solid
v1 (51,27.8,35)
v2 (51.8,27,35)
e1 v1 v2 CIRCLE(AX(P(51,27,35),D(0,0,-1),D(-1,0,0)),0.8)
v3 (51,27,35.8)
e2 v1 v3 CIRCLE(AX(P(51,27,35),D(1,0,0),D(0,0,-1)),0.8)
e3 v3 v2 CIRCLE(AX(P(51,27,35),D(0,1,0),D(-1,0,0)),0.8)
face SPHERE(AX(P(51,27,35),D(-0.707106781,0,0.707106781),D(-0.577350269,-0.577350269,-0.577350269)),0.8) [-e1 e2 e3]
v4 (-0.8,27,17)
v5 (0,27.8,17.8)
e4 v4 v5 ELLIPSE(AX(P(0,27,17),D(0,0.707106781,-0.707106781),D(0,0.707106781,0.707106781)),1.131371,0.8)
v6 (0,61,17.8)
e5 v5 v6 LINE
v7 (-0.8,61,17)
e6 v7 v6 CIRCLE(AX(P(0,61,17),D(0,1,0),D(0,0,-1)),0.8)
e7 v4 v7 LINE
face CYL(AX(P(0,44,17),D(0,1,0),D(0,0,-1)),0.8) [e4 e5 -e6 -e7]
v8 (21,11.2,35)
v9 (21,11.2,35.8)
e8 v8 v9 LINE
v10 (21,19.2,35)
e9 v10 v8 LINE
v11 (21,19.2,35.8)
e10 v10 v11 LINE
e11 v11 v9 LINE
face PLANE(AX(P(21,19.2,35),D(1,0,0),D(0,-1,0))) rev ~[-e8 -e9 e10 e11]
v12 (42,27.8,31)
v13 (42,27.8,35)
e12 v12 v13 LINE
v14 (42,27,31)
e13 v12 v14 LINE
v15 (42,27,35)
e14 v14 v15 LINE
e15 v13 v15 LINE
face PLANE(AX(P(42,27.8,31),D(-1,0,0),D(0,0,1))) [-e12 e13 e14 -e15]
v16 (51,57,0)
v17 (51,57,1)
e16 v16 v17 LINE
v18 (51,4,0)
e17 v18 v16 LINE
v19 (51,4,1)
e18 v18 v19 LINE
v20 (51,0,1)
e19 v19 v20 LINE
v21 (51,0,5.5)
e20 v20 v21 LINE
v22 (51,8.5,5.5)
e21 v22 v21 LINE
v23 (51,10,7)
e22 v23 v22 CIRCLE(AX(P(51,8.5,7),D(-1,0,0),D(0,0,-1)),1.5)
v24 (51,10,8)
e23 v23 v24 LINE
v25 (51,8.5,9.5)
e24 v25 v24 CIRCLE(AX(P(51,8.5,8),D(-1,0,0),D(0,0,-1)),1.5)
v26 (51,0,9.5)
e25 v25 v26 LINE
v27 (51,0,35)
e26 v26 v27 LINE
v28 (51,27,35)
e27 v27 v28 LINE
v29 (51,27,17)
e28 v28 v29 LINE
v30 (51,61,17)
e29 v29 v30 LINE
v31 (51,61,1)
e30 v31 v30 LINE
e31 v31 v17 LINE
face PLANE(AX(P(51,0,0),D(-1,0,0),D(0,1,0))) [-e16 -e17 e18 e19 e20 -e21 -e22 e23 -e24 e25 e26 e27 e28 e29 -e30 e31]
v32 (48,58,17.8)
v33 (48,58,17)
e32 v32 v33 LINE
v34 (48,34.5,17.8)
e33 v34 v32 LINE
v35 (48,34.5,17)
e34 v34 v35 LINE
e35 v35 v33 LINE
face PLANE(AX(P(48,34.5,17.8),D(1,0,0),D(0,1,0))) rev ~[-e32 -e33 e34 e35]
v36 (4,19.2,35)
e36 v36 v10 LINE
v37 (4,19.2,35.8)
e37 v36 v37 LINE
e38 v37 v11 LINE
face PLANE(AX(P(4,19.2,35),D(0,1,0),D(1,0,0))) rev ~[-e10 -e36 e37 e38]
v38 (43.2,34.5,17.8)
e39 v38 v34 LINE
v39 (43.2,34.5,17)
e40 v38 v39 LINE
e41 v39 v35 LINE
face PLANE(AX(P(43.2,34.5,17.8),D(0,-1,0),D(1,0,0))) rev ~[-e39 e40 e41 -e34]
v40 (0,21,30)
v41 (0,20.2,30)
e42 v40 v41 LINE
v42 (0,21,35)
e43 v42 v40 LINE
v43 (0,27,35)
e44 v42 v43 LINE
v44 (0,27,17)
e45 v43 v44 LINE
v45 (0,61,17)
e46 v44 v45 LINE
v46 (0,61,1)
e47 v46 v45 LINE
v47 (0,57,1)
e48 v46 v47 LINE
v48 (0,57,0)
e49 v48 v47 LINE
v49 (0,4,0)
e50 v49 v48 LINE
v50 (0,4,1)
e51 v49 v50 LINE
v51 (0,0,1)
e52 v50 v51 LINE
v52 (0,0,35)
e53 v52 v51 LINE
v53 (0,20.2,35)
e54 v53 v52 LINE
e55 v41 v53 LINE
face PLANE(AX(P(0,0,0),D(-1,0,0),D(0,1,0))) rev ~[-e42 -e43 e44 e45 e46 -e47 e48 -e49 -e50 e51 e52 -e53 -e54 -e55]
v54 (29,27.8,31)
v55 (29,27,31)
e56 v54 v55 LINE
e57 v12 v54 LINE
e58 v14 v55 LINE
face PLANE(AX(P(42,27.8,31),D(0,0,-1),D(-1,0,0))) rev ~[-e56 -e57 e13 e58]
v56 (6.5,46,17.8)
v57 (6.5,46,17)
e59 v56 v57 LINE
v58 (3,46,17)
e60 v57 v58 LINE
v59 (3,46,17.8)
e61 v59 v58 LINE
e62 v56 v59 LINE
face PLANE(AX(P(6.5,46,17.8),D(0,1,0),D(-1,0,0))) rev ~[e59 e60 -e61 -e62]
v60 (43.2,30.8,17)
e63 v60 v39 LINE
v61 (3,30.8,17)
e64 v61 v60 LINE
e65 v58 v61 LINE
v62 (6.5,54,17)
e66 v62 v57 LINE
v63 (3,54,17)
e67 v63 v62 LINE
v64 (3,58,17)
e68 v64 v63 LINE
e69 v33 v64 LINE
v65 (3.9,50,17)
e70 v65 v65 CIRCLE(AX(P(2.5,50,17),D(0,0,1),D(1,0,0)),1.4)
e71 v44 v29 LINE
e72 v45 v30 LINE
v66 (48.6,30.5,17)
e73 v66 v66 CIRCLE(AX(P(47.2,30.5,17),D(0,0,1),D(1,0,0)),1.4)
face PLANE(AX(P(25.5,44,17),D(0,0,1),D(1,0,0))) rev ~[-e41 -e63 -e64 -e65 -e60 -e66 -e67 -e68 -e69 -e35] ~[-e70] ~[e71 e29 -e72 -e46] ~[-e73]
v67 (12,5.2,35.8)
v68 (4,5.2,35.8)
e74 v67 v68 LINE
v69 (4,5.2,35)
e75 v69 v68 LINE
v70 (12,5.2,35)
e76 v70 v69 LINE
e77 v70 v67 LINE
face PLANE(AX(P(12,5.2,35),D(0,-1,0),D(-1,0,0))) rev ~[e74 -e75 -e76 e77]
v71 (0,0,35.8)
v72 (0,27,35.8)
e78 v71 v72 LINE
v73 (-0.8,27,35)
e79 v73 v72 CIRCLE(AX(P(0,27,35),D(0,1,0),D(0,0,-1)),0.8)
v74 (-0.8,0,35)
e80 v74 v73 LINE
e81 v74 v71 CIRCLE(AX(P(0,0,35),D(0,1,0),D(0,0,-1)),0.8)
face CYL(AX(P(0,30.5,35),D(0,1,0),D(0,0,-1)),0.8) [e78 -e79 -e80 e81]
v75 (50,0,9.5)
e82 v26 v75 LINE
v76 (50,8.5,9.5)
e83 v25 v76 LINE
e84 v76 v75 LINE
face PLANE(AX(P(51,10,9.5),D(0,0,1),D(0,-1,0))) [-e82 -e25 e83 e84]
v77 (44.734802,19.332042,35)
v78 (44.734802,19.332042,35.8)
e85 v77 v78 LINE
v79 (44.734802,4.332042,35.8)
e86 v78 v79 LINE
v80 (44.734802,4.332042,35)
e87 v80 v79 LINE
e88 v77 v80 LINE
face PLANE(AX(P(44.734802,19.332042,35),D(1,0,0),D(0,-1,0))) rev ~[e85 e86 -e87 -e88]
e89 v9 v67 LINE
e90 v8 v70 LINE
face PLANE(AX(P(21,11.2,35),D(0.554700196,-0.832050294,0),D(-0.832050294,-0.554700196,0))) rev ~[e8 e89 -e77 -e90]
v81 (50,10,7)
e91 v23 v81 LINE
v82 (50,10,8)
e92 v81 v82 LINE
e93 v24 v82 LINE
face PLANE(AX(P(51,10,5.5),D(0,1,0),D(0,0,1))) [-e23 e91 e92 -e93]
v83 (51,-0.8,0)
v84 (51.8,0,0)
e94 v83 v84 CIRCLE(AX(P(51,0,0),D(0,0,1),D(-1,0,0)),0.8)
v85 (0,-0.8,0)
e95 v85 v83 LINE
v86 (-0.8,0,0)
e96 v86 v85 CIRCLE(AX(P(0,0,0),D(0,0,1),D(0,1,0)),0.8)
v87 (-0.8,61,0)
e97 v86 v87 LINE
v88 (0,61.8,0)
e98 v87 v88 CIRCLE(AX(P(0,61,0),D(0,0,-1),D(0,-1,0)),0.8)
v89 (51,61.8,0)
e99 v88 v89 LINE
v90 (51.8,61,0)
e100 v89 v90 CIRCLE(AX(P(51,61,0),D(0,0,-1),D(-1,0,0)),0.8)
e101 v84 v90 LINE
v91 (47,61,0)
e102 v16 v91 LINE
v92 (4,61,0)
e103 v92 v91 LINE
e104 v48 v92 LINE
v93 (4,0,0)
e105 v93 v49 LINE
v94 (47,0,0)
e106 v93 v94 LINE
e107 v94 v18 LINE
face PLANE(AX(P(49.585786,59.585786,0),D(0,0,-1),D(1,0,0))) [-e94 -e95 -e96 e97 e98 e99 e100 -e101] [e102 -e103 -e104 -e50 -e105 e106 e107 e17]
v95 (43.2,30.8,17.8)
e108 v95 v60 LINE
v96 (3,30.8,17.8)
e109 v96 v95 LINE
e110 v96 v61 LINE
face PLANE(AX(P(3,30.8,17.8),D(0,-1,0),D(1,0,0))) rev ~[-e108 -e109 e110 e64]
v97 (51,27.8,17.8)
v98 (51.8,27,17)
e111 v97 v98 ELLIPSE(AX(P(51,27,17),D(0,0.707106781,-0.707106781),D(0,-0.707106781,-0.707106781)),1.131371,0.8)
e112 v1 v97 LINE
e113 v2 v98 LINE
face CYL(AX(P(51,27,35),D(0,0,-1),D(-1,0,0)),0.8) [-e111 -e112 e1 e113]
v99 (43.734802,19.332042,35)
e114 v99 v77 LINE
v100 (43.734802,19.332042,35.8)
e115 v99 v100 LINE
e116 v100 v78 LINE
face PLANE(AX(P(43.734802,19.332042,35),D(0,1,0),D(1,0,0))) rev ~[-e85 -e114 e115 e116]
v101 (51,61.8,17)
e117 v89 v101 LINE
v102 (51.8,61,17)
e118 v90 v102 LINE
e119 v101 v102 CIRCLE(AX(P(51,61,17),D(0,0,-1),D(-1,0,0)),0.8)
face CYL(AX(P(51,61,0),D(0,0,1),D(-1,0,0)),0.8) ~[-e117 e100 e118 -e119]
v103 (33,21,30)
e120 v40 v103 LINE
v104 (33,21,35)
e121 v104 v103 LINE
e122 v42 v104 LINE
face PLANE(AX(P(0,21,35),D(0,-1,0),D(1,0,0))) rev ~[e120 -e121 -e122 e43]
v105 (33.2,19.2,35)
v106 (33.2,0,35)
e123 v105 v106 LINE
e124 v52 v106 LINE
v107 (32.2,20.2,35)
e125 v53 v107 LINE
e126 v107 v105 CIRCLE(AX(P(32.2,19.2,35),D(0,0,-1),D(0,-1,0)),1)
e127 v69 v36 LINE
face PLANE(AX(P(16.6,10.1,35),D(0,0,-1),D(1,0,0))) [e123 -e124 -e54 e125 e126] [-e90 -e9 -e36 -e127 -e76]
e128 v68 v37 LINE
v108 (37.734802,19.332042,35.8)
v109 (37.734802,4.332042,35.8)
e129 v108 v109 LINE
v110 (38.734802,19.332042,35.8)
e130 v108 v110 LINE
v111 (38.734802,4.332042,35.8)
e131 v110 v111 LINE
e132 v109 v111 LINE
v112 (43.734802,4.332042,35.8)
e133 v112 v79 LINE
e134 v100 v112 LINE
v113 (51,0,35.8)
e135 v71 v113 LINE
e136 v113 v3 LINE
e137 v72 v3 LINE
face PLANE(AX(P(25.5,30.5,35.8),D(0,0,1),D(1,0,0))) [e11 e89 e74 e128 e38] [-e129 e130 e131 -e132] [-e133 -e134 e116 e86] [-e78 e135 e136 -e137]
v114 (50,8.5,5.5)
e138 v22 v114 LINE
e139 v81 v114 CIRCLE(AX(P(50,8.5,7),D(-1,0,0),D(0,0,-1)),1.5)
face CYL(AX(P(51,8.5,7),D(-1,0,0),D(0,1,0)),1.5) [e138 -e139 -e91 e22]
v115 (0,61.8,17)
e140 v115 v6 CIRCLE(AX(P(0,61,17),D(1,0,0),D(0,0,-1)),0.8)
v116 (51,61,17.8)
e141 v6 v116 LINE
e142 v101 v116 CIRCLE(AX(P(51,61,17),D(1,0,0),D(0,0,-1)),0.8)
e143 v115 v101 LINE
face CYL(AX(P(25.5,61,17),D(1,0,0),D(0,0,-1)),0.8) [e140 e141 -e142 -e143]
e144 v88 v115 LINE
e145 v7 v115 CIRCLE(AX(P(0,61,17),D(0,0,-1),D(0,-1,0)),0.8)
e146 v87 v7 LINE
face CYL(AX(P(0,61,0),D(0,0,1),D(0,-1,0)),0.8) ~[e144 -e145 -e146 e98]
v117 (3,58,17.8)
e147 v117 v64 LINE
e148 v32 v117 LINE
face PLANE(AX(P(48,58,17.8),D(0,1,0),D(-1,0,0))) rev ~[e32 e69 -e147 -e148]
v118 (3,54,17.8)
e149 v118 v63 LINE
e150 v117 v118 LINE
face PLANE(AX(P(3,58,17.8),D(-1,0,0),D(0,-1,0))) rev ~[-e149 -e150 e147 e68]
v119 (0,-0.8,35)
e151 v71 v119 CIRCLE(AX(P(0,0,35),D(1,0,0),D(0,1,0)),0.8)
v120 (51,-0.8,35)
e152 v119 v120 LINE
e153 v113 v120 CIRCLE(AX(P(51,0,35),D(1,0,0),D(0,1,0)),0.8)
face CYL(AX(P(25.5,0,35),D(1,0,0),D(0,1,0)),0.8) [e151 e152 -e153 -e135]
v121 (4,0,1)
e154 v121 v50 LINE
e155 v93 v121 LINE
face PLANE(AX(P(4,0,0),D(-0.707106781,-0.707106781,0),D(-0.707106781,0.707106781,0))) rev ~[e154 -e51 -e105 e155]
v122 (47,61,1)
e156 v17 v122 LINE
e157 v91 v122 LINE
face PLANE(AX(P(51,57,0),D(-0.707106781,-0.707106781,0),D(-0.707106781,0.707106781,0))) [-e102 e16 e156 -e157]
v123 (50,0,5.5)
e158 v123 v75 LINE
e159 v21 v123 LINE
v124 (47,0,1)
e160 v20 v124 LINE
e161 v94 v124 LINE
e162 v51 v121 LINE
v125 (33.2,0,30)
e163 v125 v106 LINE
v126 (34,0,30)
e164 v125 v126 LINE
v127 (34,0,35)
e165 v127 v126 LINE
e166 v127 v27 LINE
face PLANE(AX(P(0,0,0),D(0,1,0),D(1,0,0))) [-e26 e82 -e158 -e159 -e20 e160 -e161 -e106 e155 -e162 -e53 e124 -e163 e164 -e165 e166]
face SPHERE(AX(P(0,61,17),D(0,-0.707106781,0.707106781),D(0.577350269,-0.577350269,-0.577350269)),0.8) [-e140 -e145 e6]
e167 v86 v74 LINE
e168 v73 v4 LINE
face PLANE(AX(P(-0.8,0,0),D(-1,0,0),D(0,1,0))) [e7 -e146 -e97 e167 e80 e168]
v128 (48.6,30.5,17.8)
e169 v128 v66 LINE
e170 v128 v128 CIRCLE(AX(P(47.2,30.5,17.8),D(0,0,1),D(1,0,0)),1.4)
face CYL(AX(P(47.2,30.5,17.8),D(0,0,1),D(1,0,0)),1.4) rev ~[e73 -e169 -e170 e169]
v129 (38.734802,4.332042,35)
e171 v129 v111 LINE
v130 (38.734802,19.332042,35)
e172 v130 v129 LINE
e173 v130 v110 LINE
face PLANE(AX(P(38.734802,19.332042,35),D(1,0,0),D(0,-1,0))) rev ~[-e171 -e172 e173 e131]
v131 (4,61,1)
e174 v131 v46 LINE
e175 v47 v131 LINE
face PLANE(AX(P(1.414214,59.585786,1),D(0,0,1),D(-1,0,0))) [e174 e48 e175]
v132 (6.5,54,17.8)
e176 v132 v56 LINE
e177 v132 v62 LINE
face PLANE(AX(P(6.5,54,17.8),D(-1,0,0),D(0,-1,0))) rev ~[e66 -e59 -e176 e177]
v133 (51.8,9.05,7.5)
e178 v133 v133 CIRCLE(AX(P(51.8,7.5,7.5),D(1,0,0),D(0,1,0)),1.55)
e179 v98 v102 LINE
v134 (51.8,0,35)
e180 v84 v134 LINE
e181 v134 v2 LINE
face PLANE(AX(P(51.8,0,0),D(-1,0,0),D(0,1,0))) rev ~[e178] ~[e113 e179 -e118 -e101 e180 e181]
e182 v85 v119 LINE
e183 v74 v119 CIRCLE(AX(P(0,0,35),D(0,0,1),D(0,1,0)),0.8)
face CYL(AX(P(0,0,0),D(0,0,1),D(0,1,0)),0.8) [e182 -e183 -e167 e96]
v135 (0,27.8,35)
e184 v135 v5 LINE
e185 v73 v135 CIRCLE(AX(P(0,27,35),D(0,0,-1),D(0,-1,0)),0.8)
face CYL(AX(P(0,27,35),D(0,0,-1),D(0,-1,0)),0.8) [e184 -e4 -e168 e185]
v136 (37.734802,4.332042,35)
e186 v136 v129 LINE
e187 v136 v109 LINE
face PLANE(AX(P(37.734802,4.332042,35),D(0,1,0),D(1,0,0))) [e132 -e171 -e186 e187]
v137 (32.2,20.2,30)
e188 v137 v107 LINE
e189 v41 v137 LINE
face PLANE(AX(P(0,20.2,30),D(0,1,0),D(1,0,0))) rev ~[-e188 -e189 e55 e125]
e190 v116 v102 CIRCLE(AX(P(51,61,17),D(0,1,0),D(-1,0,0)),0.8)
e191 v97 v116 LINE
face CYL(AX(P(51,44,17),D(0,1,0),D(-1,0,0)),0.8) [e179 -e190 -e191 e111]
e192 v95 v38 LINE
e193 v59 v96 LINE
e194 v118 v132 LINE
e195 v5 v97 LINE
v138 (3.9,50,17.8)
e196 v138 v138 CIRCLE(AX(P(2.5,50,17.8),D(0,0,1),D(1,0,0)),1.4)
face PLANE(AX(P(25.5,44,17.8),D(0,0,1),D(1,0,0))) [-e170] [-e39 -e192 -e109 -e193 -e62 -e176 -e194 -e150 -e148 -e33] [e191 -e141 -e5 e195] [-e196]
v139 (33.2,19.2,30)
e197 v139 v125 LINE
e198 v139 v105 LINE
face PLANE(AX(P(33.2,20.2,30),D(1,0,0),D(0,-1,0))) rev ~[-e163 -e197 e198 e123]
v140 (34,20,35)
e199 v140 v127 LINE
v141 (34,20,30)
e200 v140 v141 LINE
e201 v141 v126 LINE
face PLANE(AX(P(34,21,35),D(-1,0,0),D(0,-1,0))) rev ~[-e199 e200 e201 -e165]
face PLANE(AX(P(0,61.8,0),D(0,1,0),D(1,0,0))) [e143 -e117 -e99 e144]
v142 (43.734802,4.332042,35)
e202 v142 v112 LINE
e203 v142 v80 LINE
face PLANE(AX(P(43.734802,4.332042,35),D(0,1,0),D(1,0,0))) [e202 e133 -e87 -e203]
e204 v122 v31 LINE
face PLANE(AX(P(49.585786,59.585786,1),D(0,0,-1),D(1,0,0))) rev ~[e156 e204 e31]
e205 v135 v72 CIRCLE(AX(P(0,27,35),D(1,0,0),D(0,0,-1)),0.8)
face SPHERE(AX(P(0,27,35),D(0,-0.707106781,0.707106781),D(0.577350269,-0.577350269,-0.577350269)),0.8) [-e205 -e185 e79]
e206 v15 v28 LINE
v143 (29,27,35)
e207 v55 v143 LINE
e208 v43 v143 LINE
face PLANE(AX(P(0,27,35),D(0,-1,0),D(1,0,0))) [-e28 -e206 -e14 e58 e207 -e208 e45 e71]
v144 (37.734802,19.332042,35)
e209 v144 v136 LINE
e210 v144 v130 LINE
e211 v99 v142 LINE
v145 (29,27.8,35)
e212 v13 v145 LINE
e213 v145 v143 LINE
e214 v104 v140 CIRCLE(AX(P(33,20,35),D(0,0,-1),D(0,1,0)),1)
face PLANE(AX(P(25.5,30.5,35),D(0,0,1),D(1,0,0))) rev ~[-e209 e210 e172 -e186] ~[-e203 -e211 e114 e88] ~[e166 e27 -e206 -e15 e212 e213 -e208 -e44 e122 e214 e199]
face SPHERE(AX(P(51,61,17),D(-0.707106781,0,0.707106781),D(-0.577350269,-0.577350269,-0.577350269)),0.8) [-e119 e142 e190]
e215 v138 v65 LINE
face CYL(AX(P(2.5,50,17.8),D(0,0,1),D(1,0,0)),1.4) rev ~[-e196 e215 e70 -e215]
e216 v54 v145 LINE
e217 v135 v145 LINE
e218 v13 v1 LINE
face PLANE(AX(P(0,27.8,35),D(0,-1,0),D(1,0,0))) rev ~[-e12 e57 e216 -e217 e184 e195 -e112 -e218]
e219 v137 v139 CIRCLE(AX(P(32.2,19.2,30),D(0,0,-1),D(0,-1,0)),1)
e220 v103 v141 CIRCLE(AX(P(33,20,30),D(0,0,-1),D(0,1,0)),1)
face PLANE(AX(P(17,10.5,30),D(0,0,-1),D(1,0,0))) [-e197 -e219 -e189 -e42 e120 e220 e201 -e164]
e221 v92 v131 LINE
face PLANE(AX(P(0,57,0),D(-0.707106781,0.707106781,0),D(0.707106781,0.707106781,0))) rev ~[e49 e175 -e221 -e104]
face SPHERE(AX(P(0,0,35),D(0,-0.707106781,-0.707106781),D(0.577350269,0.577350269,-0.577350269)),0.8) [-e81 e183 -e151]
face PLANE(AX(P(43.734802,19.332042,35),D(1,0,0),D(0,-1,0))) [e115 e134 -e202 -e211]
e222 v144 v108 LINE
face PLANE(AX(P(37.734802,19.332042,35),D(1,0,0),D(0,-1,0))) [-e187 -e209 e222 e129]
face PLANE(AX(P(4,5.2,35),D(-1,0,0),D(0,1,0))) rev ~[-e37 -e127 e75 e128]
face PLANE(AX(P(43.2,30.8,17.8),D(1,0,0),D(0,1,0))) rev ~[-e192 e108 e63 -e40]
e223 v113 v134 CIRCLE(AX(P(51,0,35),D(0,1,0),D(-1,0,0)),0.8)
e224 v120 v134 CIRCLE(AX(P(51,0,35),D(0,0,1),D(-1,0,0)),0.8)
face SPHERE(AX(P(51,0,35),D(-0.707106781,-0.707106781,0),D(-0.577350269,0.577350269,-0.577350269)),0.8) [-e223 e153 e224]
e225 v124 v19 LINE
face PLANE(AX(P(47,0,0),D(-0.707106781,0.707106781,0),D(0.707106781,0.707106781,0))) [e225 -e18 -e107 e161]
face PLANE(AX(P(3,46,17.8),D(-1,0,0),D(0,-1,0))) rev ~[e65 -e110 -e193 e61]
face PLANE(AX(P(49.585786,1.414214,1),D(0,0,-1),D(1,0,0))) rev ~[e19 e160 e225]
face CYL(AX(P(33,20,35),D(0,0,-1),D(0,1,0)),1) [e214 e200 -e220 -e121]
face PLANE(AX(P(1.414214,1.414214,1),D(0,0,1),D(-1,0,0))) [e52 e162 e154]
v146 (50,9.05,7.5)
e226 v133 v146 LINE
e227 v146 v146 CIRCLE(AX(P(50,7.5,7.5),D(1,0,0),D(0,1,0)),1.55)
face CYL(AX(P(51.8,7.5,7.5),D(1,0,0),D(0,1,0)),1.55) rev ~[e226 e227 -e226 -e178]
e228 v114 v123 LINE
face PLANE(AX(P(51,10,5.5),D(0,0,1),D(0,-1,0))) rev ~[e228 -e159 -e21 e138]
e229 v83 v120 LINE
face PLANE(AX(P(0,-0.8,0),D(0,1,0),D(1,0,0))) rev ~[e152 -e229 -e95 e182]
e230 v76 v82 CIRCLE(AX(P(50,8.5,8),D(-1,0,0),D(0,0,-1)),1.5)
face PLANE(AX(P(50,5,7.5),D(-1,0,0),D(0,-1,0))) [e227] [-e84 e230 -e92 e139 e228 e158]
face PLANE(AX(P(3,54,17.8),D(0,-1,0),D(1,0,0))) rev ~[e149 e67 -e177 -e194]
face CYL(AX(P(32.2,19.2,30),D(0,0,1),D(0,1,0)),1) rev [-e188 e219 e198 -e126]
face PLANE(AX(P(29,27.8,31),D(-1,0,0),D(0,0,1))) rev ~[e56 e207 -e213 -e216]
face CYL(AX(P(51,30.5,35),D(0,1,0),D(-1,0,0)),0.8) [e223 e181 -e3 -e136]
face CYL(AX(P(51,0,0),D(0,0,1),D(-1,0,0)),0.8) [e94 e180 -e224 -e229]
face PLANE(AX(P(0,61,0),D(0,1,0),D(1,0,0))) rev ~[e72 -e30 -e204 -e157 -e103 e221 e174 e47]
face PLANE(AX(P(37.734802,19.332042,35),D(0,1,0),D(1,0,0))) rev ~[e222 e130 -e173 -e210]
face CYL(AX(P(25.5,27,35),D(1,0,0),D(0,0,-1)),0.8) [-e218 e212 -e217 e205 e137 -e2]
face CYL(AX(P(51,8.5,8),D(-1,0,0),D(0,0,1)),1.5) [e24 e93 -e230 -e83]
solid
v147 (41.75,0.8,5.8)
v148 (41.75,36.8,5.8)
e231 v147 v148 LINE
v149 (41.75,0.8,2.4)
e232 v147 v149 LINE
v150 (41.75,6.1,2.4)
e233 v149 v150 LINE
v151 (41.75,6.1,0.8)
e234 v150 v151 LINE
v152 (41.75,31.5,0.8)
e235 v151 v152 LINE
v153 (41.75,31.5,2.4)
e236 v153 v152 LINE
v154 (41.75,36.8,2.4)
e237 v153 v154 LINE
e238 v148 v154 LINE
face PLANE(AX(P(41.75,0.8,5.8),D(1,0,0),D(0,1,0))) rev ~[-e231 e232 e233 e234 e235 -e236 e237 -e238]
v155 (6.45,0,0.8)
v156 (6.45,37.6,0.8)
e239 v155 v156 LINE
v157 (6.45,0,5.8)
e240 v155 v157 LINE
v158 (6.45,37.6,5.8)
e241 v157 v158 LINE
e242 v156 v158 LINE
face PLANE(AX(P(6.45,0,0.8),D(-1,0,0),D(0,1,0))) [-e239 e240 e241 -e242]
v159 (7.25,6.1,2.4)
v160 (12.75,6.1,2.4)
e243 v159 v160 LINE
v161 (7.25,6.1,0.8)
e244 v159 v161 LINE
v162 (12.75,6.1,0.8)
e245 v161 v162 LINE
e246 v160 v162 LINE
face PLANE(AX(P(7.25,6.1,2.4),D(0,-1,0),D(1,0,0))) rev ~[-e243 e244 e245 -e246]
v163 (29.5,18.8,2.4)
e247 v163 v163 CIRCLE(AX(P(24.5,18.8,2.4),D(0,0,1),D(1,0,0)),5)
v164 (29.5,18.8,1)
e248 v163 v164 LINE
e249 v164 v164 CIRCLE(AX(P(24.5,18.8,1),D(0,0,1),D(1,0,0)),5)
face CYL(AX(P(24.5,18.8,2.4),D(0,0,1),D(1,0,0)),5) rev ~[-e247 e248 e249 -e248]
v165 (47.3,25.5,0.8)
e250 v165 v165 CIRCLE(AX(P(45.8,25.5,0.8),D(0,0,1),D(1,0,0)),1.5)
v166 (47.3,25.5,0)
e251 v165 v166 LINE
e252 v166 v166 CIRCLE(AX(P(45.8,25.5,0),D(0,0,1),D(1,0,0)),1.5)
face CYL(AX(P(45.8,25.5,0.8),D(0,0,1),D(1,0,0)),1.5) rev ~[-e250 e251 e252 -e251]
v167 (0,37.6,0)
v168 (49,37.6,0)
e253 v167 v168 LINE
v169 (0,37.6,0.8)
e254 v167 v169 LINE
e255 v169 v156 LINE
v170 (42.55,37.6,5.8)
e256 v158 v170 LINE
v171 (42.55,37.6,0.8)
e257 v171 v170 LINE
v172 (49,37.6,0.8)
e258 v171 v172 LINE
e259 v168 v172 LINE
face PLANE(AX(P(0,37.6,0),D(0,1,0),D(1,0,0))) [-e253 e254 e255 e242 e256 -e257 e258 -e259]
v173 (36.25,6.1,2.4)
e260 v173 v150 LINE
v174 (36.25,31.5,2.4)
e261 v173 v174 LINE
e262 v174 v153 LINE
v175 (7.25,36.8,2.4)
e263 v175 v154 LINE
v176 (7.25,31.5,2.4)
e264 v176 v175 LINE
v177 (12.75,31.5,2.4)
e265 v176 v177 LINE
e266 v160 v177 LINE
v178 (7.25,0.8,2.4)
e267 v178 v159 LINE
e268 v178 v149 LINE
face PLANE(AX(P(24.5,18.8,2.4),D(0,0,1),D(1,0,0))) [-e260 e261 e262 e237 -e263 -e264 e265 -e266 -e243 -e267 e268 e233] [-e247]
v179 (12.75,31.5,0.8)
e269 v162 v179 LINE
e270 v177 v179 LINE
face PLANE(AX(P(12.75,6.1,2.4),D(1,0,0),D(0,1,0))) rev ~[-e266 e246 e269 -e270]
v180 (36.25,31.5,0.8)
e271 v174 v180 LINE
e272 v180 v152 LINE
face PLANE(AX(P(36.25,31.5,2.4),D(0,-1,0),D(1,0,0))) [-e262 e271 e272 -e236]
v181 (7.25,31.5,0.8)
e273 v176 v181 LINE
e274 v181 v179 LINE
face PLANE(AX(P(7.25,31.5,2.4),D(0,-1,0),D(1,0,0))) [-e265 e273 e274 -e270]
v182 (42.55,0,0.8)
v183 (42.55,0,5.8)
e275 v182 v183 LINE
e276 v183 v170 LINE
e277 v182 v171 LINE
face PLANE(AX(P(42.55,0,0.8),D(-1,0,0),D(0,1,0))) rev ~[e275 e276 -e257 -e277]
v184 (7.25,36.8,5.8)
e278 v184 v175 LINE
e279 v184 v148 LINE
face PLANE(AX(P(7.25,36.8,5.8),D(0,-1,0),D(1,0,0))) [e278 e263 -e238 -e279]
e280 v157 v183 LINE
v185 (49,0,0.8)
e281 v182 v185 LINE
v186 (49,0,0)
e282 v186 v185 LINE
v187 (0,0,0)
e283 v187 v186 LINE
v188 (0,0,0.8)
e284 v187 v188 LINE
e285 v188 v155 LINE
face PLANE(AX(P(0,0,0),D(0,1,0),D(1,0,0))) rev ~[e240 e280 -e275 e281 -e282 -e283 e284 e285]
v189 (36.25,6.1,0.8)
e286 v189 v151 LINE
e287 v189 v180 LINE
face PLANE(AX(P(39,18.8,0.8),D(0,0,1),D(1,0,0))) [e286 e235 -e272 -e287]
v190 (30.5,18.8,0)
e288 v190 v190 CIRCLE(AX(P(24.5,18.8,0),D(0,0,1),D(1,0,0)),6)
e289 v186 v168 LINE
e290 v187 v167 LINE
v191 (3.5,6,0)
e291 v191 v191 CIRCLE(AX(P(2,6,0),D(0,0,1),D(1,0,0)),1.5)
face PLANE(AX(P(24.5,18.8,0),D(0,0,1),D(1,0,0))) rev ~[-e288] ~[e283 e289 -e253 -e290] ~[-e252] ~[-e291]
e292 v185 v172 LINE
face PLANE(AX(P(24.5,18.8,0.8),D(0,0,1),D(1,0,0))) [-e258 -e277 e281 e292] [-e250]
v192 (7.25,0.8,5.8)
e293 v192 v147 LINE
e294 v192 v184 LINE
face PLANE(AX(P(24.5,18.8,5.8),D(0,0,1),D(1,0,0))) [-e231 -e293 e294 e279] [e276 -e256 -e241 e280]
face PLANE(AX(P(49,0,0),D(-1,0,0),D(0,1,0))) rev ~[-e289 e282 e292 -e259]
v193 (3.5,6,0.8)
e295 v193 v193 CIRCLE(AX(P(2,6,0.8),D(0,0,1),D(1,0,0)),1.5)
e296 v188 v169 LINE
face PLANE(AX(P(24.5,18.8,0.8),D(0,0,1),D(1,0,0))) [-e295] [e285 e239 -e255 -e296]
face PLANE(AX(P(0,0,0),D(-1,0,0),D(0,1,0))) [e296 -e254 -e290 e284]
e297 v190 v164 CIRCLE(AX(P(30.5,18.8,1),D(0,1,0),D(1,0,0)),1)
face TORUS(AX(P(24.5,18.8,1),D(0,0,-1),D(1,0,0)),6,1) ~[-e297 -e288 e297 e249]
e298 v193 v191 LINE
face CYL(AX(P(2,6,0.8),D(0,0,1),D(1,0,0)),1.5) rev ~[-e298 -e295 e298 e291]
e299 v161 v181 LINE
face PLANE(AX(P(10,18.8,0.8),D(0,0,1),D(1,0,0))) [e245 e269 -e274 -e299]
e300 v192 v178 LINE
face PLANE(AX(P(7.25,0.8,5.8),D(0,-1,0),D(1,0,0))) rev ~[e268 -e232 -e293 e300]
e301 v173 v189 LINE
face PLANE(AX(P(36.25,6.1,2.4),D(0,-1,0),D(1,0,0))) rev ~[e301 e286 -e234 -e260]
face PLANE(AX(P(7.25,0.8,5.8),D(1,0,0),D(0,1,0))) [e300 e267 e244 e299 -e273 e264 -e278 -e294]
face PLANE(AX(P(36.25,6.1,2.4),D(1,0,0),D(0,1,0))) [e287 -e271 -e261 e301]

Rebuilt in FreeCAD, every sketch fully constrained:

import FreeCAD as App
import Part
import Sketcher

V = App.Vector
Q = App.Units.Quantity


def edges_at(feature, points):
    """Names of the edges that pass closest to the given points."""
    edges = feature.Shape.Edges
    near = lambda p: min(range(len(edges)), key=lambda i: edges[i].distToShape(Part.Vertex(*p))[0])
    return sorted({f"Edge{near(p) + 1}" for p in points})


def faces_at(feature, points):
    """Names of the faces that lie closest to the given points."""
    faces = feature.Shape.Faces
    near = lambda p: min(range(len(faces)), key=lambda i: faces[i].distToShape(Part.Vertex(*p))[0])
    return sorted({f"Face{near(p) + 1}" for p in points})


def add_polygon(sketch, points):
    """Adds a closed chain of lines whose ends are joined by coincident constraints."""
    first, n = sketch.GeometryCount, len(points)
    for a, b in zip(points, points[1:] + points[:1]):
        sketch.addGeometry(Part.LineSegment(App.Vector(*a, 0), App.Vector(*b, 0)), False)
    for i in range(n):
        sketch.addConstraint(Sketcher.Constraint("Coincident", first + i, 2, first + (i + 1) % n, 1))

doc = App.newDocument("Part")
body = doc.addObject("PartDesign::Body", "Body")

sketch1 = doc.addObject("Sketcher::SketchObject", "Sketch")
body.addObject(sketch1)
sketch1.AttachmentSupport = (doc.XY_Plane, [""])
sketch1.MapMode = "FlatFace"
add_polygon(sketch1, [(0, 61), (0, 0), (51, 0), (51, 61)])
sketch1.addConstraint([
    Sketcher.Constraint("Vertical", 0),
    Sketcher.Constraint("Horizontal", 1),
    Sketcher.Constraint("Vertical", 2),
    Sketcher.Constraint("Horizontal", 3),
    Sketcher.Constraint("Coincident", 0, 2, -1, 1),
    Sketcher.Constraint("DistanceX", 1, 1, 1, 2, Q("51 mm")),
    Sketcher.Constraint("DistanceY", 0, 2, 0, 1, Q("61 mm")),
])
pad1 = doc.addObject("PartDesign::Pad", "Pad")
body.addObject(pad1)
pad1.Profile = sketch1
pad1.Length = 35

sketch2 = doc.addObject("Sketcher::SketchObject", "Sketch001")
body.addObject(sketch2)
sketch2.AttachmentSupport = (doc.XY_Plane, [""])
sketch2.MapMode = "FlatFace"
sketch2.AttachmentOffset = App.Placement(V(0, 0, 35), App.Rotation())
add_polygon(sketch2, [(0, 61), (0, 27), (51, 27), (51, 61)])
sketch2.addConstraint([
    Sketcher.Constraint("Vertical", 0),
    Sketcher.Constraint("Horizontal", 1),
    Sketcher.Constraint("Vertical", 2),
    Sketcher.Constraint("Horizontal", 3),
    Sketcher.Constraint("PointOnObject", 0, 2, -2),
    Sketcher.Constraint("DistanceX", 1, 1, 1, 2, Q("51 mm")),
    Sketcher.Constraint("DistanceY", 0, 2, 0, 1, Q("34 mm")),
    Sketcher.Constraint("DistanceY", -1, 1, 0, 2, Q("27 mm")),
])
pocket1 = doc.addObject("PartDesign::Pocket", "Pocket")
body.addObject(pocket1)
pocket1.Profile = sketch2
pocket1.Length = 18
doc.recompute()

thickness = doc.addObject("PartDesign::Thickness", "Thickness")
body.addObject(thickness)
thickness.Base = (pocket1, faces_at(pocket1, [(25.5, 30.5, 0)]))
thickness.Value = 0.8
thickness.Reversed = False
thickness.Join = "Arc"

sketch3 = doc.addObject("Sketcher::SketchObject", "Sketch002")
body.addObject(sketch3)
sketch3.AttachmentSupport = (doc.XZ_Plane, [""])
sketch3.MapMode = "FlatFace"
sketch3.AttachmentOffset = App.Placement(V(0, 0, -27.8), App.Rotation())
add_polygon(sketch3, [(42, 35), (42, 31), (29, 31), (29, 35)])
sketch3.addConstraint([
    Sketcher.Constraint("Vertical", 0),
    Sketcher.Constraint("Horizontal", 1),
    Sketcher.Constraint("Vertical", 2),
    Sketcher.Constraint("Horizontal", 3),
    Sketcher.Constraint("DistanceX", 1, 2, 1, 1, Q("13 mm")),
    Sketcher.Constraint("DistanceY", 0, 2, 0, 1, Q("4 mm")),
    Sketcher.Constraint("DistanceX", -1, 1, 0, 2, Q("42 mm")),
    Sketcher.Constraint("DistanceY", -1, 1, 0, 2, Q("31 mm")),
])
pocket2 = doc.addObject("PartDesign::Pocket", "Pocket001")
body.addObject(pocket2)
pocket2.Profile = sketch3
pocket2.Length = 0.8
pocket2.Reversed = True

sketch4 = doc.addObject("Sketcher::SketchObject", "Sketch003")
body.addObject(sketch4)
sketch4.AttachmentSupport = (doc.XY_Plane, [""])
sketch4.MapMode = "FlatFace"
sketch4.AttachmentOffset = App.Placement(V(0, 0, 17.8), App.Rotation())
sketch4.addGeometry(Part.Circle(V(2.5, 50, 0), V(0, 0, 1), 1.4), False)
sketch4.addConstraint([
    Sketcher.Constraint("Diameter", 0, Q("2.8 mm")),
    Sketcher.Constraint("DistanceY", -1, 1, 0, 3, Q("50 mm")),
    Sketcher.Constraint("DistanceX", -1, 1, 0, 3, Q("2.5 mm")),
])
pocket3 = doc.addObject("PartDesign::Pocket", "Pocket002")
body.addObject(pocket3)
pocket3.Profile = sketch4
pocket3.Length = 0.8

sketch5 = doc.addObject("Sketcher::SketchObject", "Sketch004")
body.addObject(sketch5)
sketch5.AttachmentSupport = (doc.XY_Plane, [""])
sketch5.MapMode = "FlatFace"
sketch5.AttachmentOffset = App.Placement(V(0, 0, 17.8), App.Rotation())
sketch5.addGeometry(Part.Circle(V(47.2, 30.5, 0), V(0, 0, 1), 1.4), False)
sketch5.addConstraint([
    Sketcher.Constraint("Diameter", 0, Q("2.8 mm")),
    Sketcher.Constraint("DistanceX", -1, 1, 0, 3, Q("47.2 mm")),
    Sketcher.Constraint("DistanceY", -1, 1, 0, 3, Q("30.5 mm")),
])
pocket4 = doc.addObject("PartDesign::Pocket", "Pocket003")
body.addObject(pocket4)
pocket4.Profile = sketch5
pocket4.Length = 0.8

sketch6 = doc.addObject("Sketcher::SketchObject", "Sketch005")
body.addObject(sketch6)
sketch6.AttachmentSupport = (doc.XY_Plane, [""])
sketch6.MapMode = "FlatFace"
sketch6.AttachmentOffset = App.Placement(V(0, 0, 17.8), App.Rotation())
add_polygon(sketch6, [(3, 46), (3, 30.8), (43.2, 30.8), (43.2, 34.5), (48, 34.5), (48, 58), (3, 58), (3, 54), (6.5, 54), (6.5, 46)])
sketch6.addConstraint([
    Sketcher.Constraint("Vertical", 0),
    Sketcher.Constraint("Horizontal", 1),
    Sketcher.Constraint("Vertical", 2),
    Sketcher.Constraint("Horizontal", 3),
    Sketcher.Constraint("Vertical", 4),
    Sketcher.Constraint("Horizontal", 5),
    Sketcher.Constraint("Vertical", 6),
    Sketcher.Constraint("Horizontal", 7),
    Sketcher.Constraint("Vertical", 8),
    Sketcher.Constraint("Horizontal", 9),
    Sketcher.Constraint("Vertical", 0, 2, 5, 2),
    Sketcher.Constraint("DistanceX", 5, 2, 5, 1, Q("45 mm")),
    Sketcher.Constraint("DistanceY", 6, 2, 6, 1, Q("4 mm")),
    Sketcher.Constraint("DistanceY", 8, 2, 8, 1, Q("8 mm")),
    Sketcher.Constraint("DistanceX", 1, 1, 1, 2, Q("40.2 mm")),
    Sketcher.Constraint("DistanceX", 7, 1, 7, 2, Q("3.5 mm")),
    Sketcher.Constraint("DistanceY", 0, 2, 0, 1, Q("15.2 mm")),
    Sketcher.Constraint("DistanceY", 2, 1, 2, 2, Q("3.7 mm")),
    Sketcher.Constraint("DistanceX", -1, 1, 0, 2, Q("3 mm")),
    Sketcher.Constraint("DistanceY", -1, 1, 4, 2, Q("58 mm")),
])
pocket5 = doc.addObject("PartDesign::Pocket", "Pocket004")
body.addObject(pocket5)
pocket5.Profile = sketch6
pocket5.Length = 0.8

sketch7 = doc.addObject("Sketcher::SketchObject", "Sketch006")
body.addObject(sketch7)
sketch7.AttachmentSupport = (doc.XY_Plane, [""])
sketch7.MapMode = "FlatFace"
sketch7.AttachmentOffset = App.Placement(V(0, 0, 35), App.Rotation())
add_polygon(sketch7, [(0, 0), (0, 21), (34, 21), (34, 0)])
sketch7.addConstraint([
    Sketcher.Constraint("Vertical", 0),
    Sketcher.Constraint("Horizontal", 1),
    Sketcher.Constraint("Vertical", 2),
    Sketcher.Constraint("Horizontal", 3),
    Sketcher.Constraint("Coincident", 3, 2, -1, 1),
    Sketcher.Constraint("DistanceX", 1, 1, 1, 2, Q("34 mm")),
    Sketcher.Constraint("DistanceY", 0, 1, 0, 2, Q("21 mm")),
])
pad2 = doc.addObject("PartDesign::Pad", "Pad001")
body.addObject(pad2)
pad2.Profile = sketch7
pad2.Length = 5
pad2.Reversed = True

sketch8 = doc.addObject("Sketcher::SketchObject", "Sketch007")
body.addObject(sketch8)
sketch8.AttachmentSupport = (doc.XY_Plane, [""])
sketch8.MapMode = "FlatFace"
sketch8.AttachmentOffset = App.Placement(V(0, 0, 30), App.Rotation())
add_polygon(sketch8, [(0, 0), (0, 20), (33, 20), (33, 0)])
sketch8.addConstraint([
    Sketcher.Constraint("Vertical", 0),
    Sketcher.Constraint("Horizontal", 1),
    Sketcher.Constraint("Vertical", 2),
    Sketcher.Constraint("Horizontal", 3),
    Sketcher.Constraint("Coincident", 3, 2, -1, 1),
    Sketcher.Constraint("DistanceX", 1, 1, 1, 2, Q("33.2 mm")),
    Sketcher.Constraint("DistanceY", 0, 1, 0, 2, Q("20.2 mm")),
])
pocket6 = doc.addObject("PartDesign::Pocket", "Pocket005")
body.addObject(pocket6)
pocket6.Profile = sketch8
pocket6.Length = 5
pocket6.Reversed = True

sketch9 = doc.addObject("Sketcher::SketchObject", "Sketch008")
body.addObject(sketch9)
sketch9.AttachmentSupport = (doc.XY_Plane, [""])
sketch9.MapMode = "FlatFace"
sketch9.AttachmentOffset = App.Placement(V(0, 0, 35), App.Rotation())
add_polygon(sketch9, [(4, 19), (21, 19), (21, 11), (12, 5), (4, 5)])
sketch9.addConstraint([
    Sketcher.Constraint("Horizontal", 0),
    Sketcher.Constraint("Vertical", 1),
    Sketcher.Constraint("Horizontal", 3),
    Sketcher.Constraint("Vertical", 4),
    Sketcher.Constraint("Equal", 3, 1),
    Sketcher.Constraint("DistanceX", 0, 1, 0, 2, Q("17 mm")),
    Sketcher.Constraint("DistanceX", 3, 2, 3, 1, Q("8 mm")),
    Sketcher.Constraint("DistanceY", 4, 1, 4, 2, Q("14 mm")),
    Sketcher.Constraint("DistanceX", -1, 1, 0, 2, Q("21 mm")),
    Sketcher.Constraint("DistanceY", -1, 1, 0, 2, Q("19.2 mm")),
])
pocket7 = doc.addObject("PartDesign::Pocket", "Pocket006")
body.addObject(pocket7)
pocket7.Profile = sketch9
pocket7.Length = 0.8
pocket7.Reversed = True

sketch10 = doc.addObject("Sketcher::SketchObject", "Sketch009")
body.addObject(sketch10)
sketch10.AttachmentSupport = (doc.XY_Plane, [""])
sketch10.MapMode = "FlatFace"
sketch10.AttachmentOffset = App.Placement(V(0, 0, 35), App.Rotation())
add_polygon(sketch10, [(37.7, 4.3), (37.7, 19.3), (38.7, 19.3), (38.7, 4.3)])
sketch10.addConstraint([
    Sketcher.Constraint("Vertical", 0),
    Sketcher.Constraint("Horizontal", 1),
    Sketcher.Constraint("Vertical", 2),
    Sketcher.Constraint("Horizontal", 3),
    Sketcher.Constraint("DistanceX", 1, 1, 1, 2, Q("1 mm")),
    Sketcher.Constraint("DistanceY", 0, 1, 0, 2, Q("15 mm")),
    Sketcher.Constraint("DistanceX", -1, 1, 0, 2, Q("37.734802 mm")),
    Sketcher.Constraint("DistanceY", -1, 1, 0, 2, Q("19.332042 mm")),
])
pocket8 = doc.addObject("PartDesign::Pocket", "Pocket007")
body.addObject(pocket8)
pocket8.Profile = sketch10
pocket8.Length = 0.8
pocket8.Reversed = True
doc.recompute()

linearpattern = doc.addObject("PartDesign::LinearPattern", "LinearPattern")
body.addObject(linearpattern)
linearpattern.Originals = [pocket8]
linearpattern.Direction = (doc.X_Axis, [""])
linearpattern.Mode = "offset"
linearpattern.Offset = 6
linearpattern.Occurrences = 2
body.Tip = linearpattern
doc.recompute()

fillet = doc.addObject("PartDesign::Fillet", "Fillet")
body.addObject(fillet)
fillet.Base = (linearpattern, edges_at(linearpattern, [(33.2, 20.2, 32.5), (34, 21, 32.5)]))
fillet.Radius = 1

sketch11 = doc.addObject("Sketcher::SketchObject", "Sketch010")
body.addObject(sketch11)
sketch11.AttachmentSupport = (doc.XY_Plane, [""])
sketch11.MapMode = "FlatFace"
add_polygon(sketch11, [(4, 0), (0, 0), (0, 4)])
sketch11.addConstraint([
    Sketcher.Constraint("Horizontal", 0),
    Sketcher.Constraint("Vertical", 1),
    Sketcher.Constraint("Coincident", 0, 2, -1, 1),
    Sketcher.Constraint("Equal", 0, 1),
    Sketcher.Constraint("DistanceX", 0, 2, 0, 1, Q("4 mm")),
])
pad3 = doc.addObject("PartDesign::Pad", "Pad002")
body.addObject(pad3)
pad3.Profile = sketch11
pad3.Length = 1

sketch12 = doc.addObject("Sketcher::SketchObject", "Sketch011")
body.addObject(sketch12)
sketch12.AttachmentSupport = (doc.XY_Plane, [""])
sketch12.MapMode = "FlatFace"
add_polygon(sketch12, [(51, 0), (47, 0), (51, 4)])
sketch12.addConstraint([
    Sketcher.Constraint("Horizontal", 0),
    Sketcher.Constraint("Vertical", 2),
    Sketcher.Constraint("PointOnObject", 0, 2, -1),
    Sketcher.Constraint("Equal", 0, 2),
    Sketcher.Constraint("DistanceX", 0, 2, 0, 1, Q("4 mm")),
    Sketcher.Constraint("DistanceX", -1, 1, 0, 2, Q("47 mm")),
])
pad4 = doc.addObject("PartDesign::Pad", "Pad003")
body.addObject(pad4)
pad4.Profile = sketch12
pad4.Length = 1

sketch13 = doc.addObject("Sketcher::SketchObject", "Sketch012")
body.addObject(sketch13)
sketch13.AttachmentSupport = (doc.XY_Plane, [""])
sketch13.MapMode = "FlatFace"
add_polygon(sketch13, [(0, 57), (0, 61), (4, 61)])
sketch13.addConstraint([
    Sketcher.Constraint("Vertical", 0),
    Sketcher.Constraint("Horizontal", 1),
    Sketcher.Constraint("PointOnObject", 0, 2, -2),
    Sketcher.Constraint("Equal", 1, 0),
    Sketcher.Constraint("DistanceX", 1, 1, 1, 2, Q("4 mm")),
    Sketcher.Constraint("DistanceY", -1, 1, 0, 2, Q("61 mm")),
])
pad5 = doc.addObject("PartDesign::Pad", "Pad004")
body.addObject(pad5)
pad5.Profile = sketch13
pad5.Length = 1

sketch14 = doc.addObject("Sketcher::SketchObject", "Sketch013")
body.addObject(sketch14)
sketch14.AttachmentSupport = (doc.XY_Plane, [""])
sketch14.MapMode = "FlatFace"
add_polygon(sketch14, [(51, 61), (51, 57), (47, 61)])
sketch14.addConstraint([
    Sketcher.Constraint("Vertical", 0),
    Sketcher.Constraint("Horizontal", 2),
    Sketcher.Constraint("Equal", 2, 0),
    Sketcher.Constraint("DistanceX", 2, 1, 2, 2, Q("4 mm")),
    Sketcher.Constraint("DistanceX", -1, 1, 0, 2, Q("51 mm")),
    Sketcher.Constraint("DistanceY", -1, 1, 0, 2, Q("57 mm")),
])
pad6 = doc.addObject("PartDesign::Pad", "Pad005")
body.addObject(pad6)
pad6.Profile = sketch14
pad6.Length = 1

sketch15 = doc.addObject("Sketcher::SketchObject", "Sketch014")
body.addObject(sketch15)
sketch15.AttachmentSupport = (doc.YZ_Plane, [""])
sketch15.MapMode = "FlatFace"
sketch15.AttachmentOffset = App.Placement(V(0, 0, 51), App.Rotation())
add_polygon(sketch15, [(10, 9.5), (10, 5.5), (0, 5.5), (0, 9.5)])
sketch15.addConstraint([
    Sketcher.Constraint("Vertical", 0),
    Sketcher.Constraint("Horizontal", 1),
    Sketcher.Constraint("Vertical", 2),
    Sketcher.Constraint("Horizontal", 3),
    Sketcher.Constraint("PointOnObject", 1, 2, -2),
    Sketcher.Constraint("DistanceX", 1, 2, 1, 1, Q("10 mm")),
    Sketcher.Constraint("DistanceY", 0, 2, 0, 1, Q("4 mm")),
    Sketcher.Constraint("DistanceY", -1, 1, 0, 2, Q("5.5 mm")),
])
pad7 = doc.addObject("PartDesign::Pad", "Pad006")
body.addObject(pad7)
pad7.Profile = sketch15
pad7.Length = 1
pad7.Reversed = True

sketch16 = doc.addObject("Sketcher::SketchObject", "Sketch015")
body.addObject(sketch16)
sketch16.AttachmentSupport = (doc.YZ_Plane, [""])
sketch16.MapMode = "FlatFace"
sketch16.AttachmentOffset = App.Placement(V(0, 0, 51.8), App.Rotation())
sketch16.addGeometry(Part.Circle(V(7.5, 7.5, 0), V(0, 0, 1), 1.6), False)
sketch16.addConstraint([
    Sketcher.Constraint("Diameter", 0, Q("3.1 mm")),
    Sketcher.Constraint("DistanceX", -1, 1, 0, 3, Q("7.5 mm")),
    Sketcher.Constraint("DistanceY", -1, 1, 0, 3, Q("7.5 mm")),
])
pocket9 = doc.addObject("PartDesign::Pocket", "Pocket008")
body.addObject(pocket9)
pocket9.Profile = sketch16
pocket9.Length = 1.8
doc.recompute()

fillet2 = doc.addObject("PartDesign::Fillet", "Fillet001")
body.addObject(fillet2)
fillet2.Base = (pocket9, edges_at(pocket9, [(50.5, 10, 5.5), (50.5, 10, 9.5)]))
fillet2.Radius = 1.5
body2 = doc.addObject("PartDesign::Body", "Body001")

sketch17 = doc.addObject("Sketcher::SketchObject", "Sketch016")
body2.addObject(sketch17)
sketch17.AttachmentSupport = (doc.getObject("XY_Plane001"), [""])
sketch17.MapMode = "FlatFace"
add_polygon(sketch17, [(0, 38), (0, 0), (49, 0), (49, 38)])
sketch17.addConstraint([
    Sketcher.Constraint("Vertical", 0),
    Sketcher.Constraint("Horizontal", 1),
    Sketcher.Constraint("Vertical", 2),
    Sketcher.Constraint("Horizontal", 3),
    Sketcher.Constraint("Coincident", 0, 2, -1, 1),
    Sketcher.Constraint("DistanceX", 1, 1, 1, 2, Q("49 mm")),
    Sketcher.Constraint("DistanceY", 0, 2, 0, 1, Q("37.6 mm")),
])
pad8 = doc.addObject("PartDesign::Pad", "Pad007")
body2.addObject(pad8)
pad8.Profile = sketch17
pad8.Length = 0.8

sketch18 = doc.addObject("Sketcher::SketchObject", "Sketch017")
body2.addObject(sketch18)
sketch18.AttachmentSupport = (doc.getObject("XY_Plane001"), [""])
sketch18.MapMode = "FlatFace"
sketch18.AttachmentOffset = App.Placement(V(0, 0, 0.8), App.Rotation())
sketch18.addGeometry(Part.Circle(V(2, 6, 0), V(0, 0, 1), 1.5), False)
sketch18.addConstraint([
    Sketcher.Constraint("Diameter", 0, Q("3 mm")),
    Sketcher.Constraint("DistanceX", -1, 1, 0, 3, Q("2 mm")),
    Sketcher.Constraint("DistanceY", -1, 1, 0, 3, Q("6 mm")),
])
pocket10 = doc.addObject("PartDesign::Pocket", "Pocket009")
body2.addObject(pocket10)
pocket10.Profile = sketch18
pocket10.Length = 0.8

sketch19 = doc.addObject("Sketcher::SketchObject", "Sketch018")
body2.addObject(sketch19)
sketch19.AttachmentSupport = (doc.getObject("XY_Plane001"), [""])
sketch19.MapMode = "FlatFace"
sketch19.AttachmentOffset = App.Placement(V(0, 0, 0.8), App.Rotation())
sketch19.addGeometry(Part.Circle(V(45.8, 25.5, 0), V(0, 0, 1), 1.5), False)
sketch19.addConstraint([
    Sketcher.Constraint("Diameter", 0, Q("3 mm")),
    Sketcher.Constraint("DistanceX", -1, 1, 0, 3, Q("45.8 mm")),
    Sketcher.Constraint("DistanceY", -1, 1, 0, 3, Q("25.5 mm")),
])
pocket11 = doc.addObject("PartDesign::Pocket", "Pocket010")
body2.addObject(pocket11)
pocket11.Profile = sketch19
pocket11.Length = 0.8

sketch20 = doc.addObject("Sketcher::SketchObject", "Sketch019")
body2.addObject(sketch20)
sketch20.AttachmentSupport = (doc.getObject("XY_Plane001"), [""])
sketch20.MapMode = "FlatFace"
sketch20.AttachmentOffset = App.Placement(V(0, 0, 0.8), App.Rotation())
add_polygon(sketch20, [(6, 38), (6, 0), (43, 0), (43, 38)])
sketch20.addConstraint([
    Sketcher.Constraint("Vertical", 0),
    Sketcher.Constraint("Horizontal", 1),
    Sketcher.Constraint("Vertical", 2),
    Sketcher.Constraint("Horizontal", 3),
    Sketcher.Constraint("PointOnObject", 0, 2, -1),
    Sketcher.Constraint("DistanceX", 1, 1, 1, 2, Q("36.1 mm")),
    Sketcher.Constraint("DistanceY", 0, 2, 0, 1, Q("37.6 mm")),
    Sketcher.Constraint("DistanceX", -1, 1, 0, 2, Q("6.45 mm")),
])
pad9 = doc.addObject("PartDesign::Pad", "Pad008")
body2.addObject(pad9)
pad9.Profile = sketch20
pad9.Length = 5

sketch21 = doc.addObject("Sketcher::SketchObject", "Sketch020")
body2.addObject(sketch21)
sketch21.AttachmentSupport = (doc.getObject("XY_Plane001"), [""])
sketch21.MapMode = "FlatFace"
sketch21.AttachmentOffset = App.Placement(V(0, 0, 5.8), App.Rotation())
add_polygon(sketch21, [(7, 37), (7, 1), (42, 1), (42, 37)])
sketch21.addConstraint([
    Sketcher.Constraint("Vertical", 0),
    Sketcher.Constraint("Horizontal", 1),
    Sketcher.Constraint("Vertical", 2),
    Sketcher.Constraint("Horizontal", 3),
    Sketcher.Constraint("DistanceY", 0, 2, 0, 1, Q("36 mm")),
    Sketcher.Constraint("DistanceX", 1, 1, 1, 2, Q("34.5 mm")),
    Sketcher.Constraint("DistanceY", -1, 1, 0, 2, Q("0.8 mm")),
    Sketcher.Constraint("DistanceX", -1, 1, 0, 2, Q("7.25 mm")),
])
pocket12 = doc.addObject("PartDesign::Pocket", "Pocket011")
body2.addObject(pocket12)
pocket12.Profile = sketch21
pocket12.Length = 3.4

sketch22 = doc.addObject("Sketcher::SketchObject", "Sketch021")
body2.addObject(sketch22)
sketch22.AttachmentSupport = (doc.getObject("XY_Plane001"), [""])
sketch22.MapMode = "FlatFace"
sketch22.AttachmentOffset = App.Placement(V(0, 0, 2.4), App.Rotation())
add_polygon(sketch22, [(7, 32), (7, 6), (13, 6), (13, 32)])
sketch22.addConstraint([
    Sketcher.Constraint("Vertical", 0),
    Sketcher.Constraint("Horizontal", 1),
    Sketcher.Constraint("Vertical", 2),
    Sketcher.Constraint("Horizontal", 3),
    Sketcher.Constraint("DistanceX", 1, 1, 1, 2, Q("5.5 mm")),
    Sketcher.Constraint("DistanceY", 0, 2, 0, 1, Q("25.4 mm")),
    Sketcher.Constraint("DistanceY", -1, 1, 0, 2, Q("6.1 mm")),
    Sketcher.Constraint("DistanceX", -1, 1, 0, 2, Q("7.25 mm")),
])
pocket13 = doc.addObject("PartDesign::Pocket", "Pocket012")
body2.addObject(pocket13)
pocket13.Profile = sketch22
pocket13.Length = 1.6

sketch23 = doc.addObject("Sketcher::SketchObject", "Sketch022")
body2.addObject(sketch23)
sketch23.AttachmentSupport = (doc.getObject("XY_Plane001"), [""])
sketch23.MapMode = "FlatFace"
sketch23.AttachmentOffset = App.Placement(V(0, 0, 2.4), App.Rotation())
add_polygon(sketch23, [(36, 32), (36, 6), (42, 6), (42, 32)])
sketch23.addConstraint([
    Sketcher.Constraint("Vertical", 0),
    Sketcher.Constraint("Horizontal", 1),
    Sketcher.Constraint("Vertical", 2),
    Sketcher.Constraint("Horizontal", 3),
    Sketcher.Constraint("DistanceX", 1, 1, 1, 2, Q("5.5 mm")),
    Sketcher.Constraint("DistanceY", 0, 2, 0, 1, Q("25.4 mm")),
    Sketcher.Constraint("DistanceY", -1, 1, 0, 2, Q("6.1 mm")),
    Sketcher.Constraint("DistanceX", -1, 1, 0, 2, Q("36.25 mm")),
])
pocket14 = doc.addObject("PartDesign::Pocket", "Pocket013")
body2.addObject(pocket14)
pocket14.Profile = sketch23
pocket14.Length = 1.6

sketch24 = doc.addObject("Sketcher::SketchObject", "Sketch023")
body2.addObject(sketch24)
sketch24.AttachmentSupport = (doc.getObject("XY_Plane001"), [""])
sketch24.MapMode = "FlatFace"
sketch24.AttachmentOffset = App.Placement(V(0, 0, 2.4), App.Rotation())
sketch24.addGeometry(Part.Circle(V(24, 19, 0), V(0, 0, 1), 5), False)
sketch24.addConstraint([
    Sketcher.Constraint("Diameter", 0, Q("10 mm")),
    Sketcher.Constraint("DistanceX", -1, 1, 0, 3, Q("24.5 mm")),
    Sketcher.Constraint("DistanceY", -1, 1, 0, 3, Q("18.8 mm")),
])
pocket15 = doc.addObject("PartDesign::Pocket", "Pocket014")
body2.addObject(pocket15)
pocket15.Profile = sketch24
pocket15.Length = 2.4
doc.recompute()

fillet3 = doc.addObject("PartDesign::Fillet", "Fillet002")
body2.addObject(fillet3)
fillet3.Base = (pocket15, edges_at(pocket15, [(19.5, 18.8, 0)]))
fillet3.Radius = 1
body3 = doc.addObject("PartDesign::Body", "Body002")
doc.recompute()

body2.Placement = App.Placement(V(1, 56, 15), App.Rotation(V(1, 0, 0), 180))
boolean = doc.addObject("PartDesign::Boolean", "Boolean")
body3.addObject(boolean)
boolean.Type = "Fuse"
boolean.addObjects([body2])

doc.recompute()
